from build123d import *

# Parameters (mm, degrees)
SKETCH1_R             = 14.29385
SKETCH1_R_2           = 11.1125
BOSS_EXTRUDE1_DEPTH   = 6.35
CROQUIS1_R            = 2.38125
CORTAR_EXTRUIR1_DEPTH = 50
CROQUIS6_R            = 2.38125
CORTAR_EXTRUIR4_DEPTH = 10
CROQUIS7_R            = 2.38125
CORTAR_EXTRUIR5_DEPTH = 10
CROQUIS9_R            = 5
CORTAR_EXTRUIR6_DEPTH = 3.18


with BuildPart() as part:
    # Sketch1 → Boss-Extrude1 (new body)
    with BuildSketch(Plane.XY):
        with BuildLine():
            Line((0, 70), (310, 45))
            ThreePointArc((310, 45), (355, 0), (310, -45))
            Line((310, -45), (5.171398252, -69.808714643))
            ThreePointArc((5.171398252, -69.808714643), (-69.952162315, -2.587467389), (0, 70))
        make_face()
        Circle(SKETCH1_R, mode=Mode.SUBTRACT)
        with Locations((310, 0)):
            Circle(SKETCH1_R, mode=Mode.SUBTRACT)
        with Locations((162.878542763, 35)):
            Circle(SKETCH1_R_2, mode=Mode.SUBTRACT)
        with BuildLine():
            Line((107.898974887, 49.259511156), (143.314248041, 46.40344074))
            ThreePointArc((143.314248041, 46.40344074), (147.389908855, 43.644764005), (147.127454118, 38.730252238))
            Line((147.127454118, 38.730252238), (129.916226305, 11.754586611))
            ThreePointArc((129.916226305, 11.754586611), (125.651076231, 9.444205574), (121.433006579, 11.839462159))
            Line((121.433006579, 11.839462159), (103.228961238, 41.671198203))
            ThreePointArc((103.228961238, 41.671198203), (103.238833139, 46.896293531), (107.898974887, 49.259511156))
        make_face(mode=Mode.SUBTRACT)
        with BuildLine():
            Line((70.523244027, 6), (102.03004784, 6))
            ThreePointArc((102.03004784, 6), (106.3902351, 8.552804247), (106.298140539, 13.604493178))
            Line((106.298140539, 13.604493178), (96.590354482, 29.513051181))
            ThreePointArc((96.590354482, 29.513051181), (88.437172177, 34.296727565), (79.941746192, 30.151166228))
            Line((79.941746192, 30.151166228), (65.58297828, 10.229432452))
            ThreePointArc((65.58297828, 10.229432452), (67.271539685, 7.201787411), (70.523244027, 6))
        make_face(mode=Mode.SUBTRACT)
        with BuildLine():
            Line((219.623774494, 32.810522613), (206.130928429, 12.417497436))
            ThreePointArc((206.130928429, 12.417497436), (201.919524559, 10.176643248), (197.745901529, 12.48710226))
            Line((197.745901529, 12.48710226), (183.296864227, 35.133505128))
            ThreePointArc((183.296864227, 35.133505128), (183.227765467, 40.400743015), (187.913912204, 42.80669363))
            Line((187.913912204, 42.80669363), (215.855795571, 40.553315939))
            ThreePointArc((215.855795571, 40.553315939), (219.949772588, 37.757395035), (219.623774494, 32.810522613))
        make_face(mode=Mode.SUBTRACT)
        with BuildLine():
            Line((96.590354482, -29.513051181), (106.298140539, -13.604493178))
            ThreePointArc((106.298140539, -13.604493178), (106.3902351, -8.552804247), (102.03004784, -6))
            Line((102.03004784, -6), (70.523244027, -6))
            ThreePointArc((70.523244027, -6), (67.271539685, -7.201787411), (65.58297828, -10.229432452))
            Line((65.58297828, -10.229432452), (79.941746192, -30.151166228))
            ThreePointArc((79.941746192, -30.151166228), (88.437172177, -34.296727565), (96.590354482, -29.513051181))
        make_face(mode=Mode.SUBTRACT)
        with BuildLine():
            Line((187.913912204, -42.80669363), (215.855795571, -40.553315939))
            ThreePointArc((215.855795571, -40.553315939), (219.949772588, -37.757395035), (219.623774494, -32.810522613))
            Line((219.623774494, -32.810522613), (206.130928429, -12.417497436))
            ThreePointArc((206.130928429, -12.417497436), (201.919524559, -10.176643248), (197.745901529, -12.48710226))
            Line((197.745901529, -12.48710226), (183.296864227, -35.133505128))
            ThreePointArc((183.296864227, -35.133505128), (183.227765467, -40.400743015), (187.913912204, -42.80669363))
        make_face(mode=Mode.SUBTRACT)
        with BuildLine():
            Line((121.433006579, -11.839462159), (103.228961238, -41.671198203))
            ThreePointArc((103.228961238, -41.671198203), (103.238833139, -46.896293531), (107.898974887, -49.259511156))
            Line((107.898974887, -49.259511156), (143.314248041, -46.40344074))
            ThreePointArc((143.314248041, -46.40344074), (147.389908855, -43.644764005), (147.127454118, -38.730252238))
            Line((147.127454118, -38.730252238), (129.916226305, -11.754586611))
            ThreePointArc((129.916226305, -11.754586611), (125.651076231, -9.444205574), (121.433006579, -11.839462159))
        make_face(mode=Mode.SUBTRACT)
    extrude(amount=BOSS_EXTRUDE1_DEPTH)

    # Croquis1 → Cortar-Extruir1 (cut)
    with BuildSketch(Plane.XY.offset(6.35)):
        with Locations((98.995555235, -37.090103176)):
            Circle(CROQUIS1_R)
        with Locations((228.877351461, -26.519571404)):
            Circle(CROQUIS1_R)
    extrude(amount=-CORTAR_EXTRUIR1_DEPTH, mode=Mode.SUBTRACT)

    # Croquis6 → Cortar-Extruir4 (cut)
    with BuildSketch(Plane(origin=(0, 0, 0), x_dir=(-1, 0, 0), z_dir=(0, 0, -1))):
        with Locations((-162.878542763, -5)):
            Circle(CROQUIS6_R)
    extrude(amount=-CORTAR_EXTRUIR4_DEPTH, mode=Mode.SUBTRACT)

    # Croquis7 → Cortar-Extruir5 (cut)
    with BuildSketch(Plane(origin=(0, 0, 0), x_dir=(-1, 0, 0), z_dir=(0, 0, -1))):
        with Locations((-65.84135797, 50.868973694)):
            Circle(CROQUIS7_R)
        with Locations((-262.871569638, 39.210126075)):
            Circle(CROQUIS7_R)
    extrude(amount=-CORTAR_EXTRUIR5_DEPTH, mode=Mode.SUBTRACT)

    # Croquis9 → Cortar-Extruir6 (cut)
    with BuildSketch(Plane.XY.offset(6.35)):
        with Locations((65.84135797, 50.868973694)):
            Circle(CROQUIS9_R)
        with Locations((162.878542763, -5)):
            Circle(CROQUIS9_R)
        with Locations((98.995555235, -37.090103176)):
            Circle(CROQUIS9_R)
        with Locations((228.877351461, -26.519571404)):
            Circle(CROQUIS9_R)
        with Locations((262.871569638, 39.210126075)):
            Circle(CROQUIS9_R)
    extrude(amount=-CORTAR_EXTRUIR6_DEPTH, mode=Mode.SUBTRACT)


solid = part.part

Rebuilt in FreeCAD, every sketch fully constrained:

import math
import FreeCAD as App
import Part
import Sketcher
from FreeCAD import Vector
Q = App.Units.Quantity

doc = App.newDocument("Part")
body = doc.addObject("PartDesign::Body", "Body")

sketch1 = body.newObject("Sketcher::SketchObject", "Sketch")
sketch1.AttachmentSupport = (doc.getObject("XY_Plane"), [""])
sketch1.MapMode = "FlatFace"
sketch1.addGeometry([
    Part.LineSegment(Vector(310, 45, 0), Vector(0, 70, 0)),
    Part.ArcOfCircle(Part.Circle(Vector(0, 0, 0), Vector(0, 0, 1), 70), math.radians(90), math.radians(274.236707)),
    Part.LineSegment(Vector(5.171398, -69.808715, 0), Vector(310, -45, 0)),
    Part.ArcOfCircle(Part.Circle(Vector(310, 0, 0), Vector(0, 0, 1), 45), math.radians(-90), math.radians(90)),
    Part.ArcOfCircle(Part.Circle(Vector(187.511991, -37.822874, 0), Vector(0, 0, 1), 5), math.radians(147.460988), math.radians(274.610649)),
    Part.LineSegment(Vector(183.296864, -35.133505, 0), Vector(197.745902, -12.487102, 0)),
    Part.ArcOfCircle(Part.Circle(Vector(201.961029, -15.176471, 0), Vector(0, 0, 1), 5), math.radians(33.490225), math.radians(147.460988)),
    Part.LineSegment(Vector(206.130928, -12.417497, 0), Vector(219.623774, -32.810523, 0)),
    Part.ArcOfCircle(Part.Circle(Vector(215.453875, -35.569496, 0), Vector(0, 0, 1), 5), math.radians(-85.389351), math.radians(33.490225)),
    Part.LineSegment(Vector(215.855796, -40.553316, 0), Vector(187.913912, -42.806694, 0)),
    Part.Circle(Vector(310, 0, 0), Vector(0, 0, 1), 14.29385),
    Part.ArcOfCircle(Part.Circle(Vector(125.701099, -14.443955, 0), Vector(0, 0, 1), 5), math.radians(32.539012), math.radians(148.60745)),
    Part.LineSegment(Vector(129.916226, -11.754587, 0), Vector(147.127454, -38.730252, 0)),
    Part.ArcOfCircle(Part.Circle(Vector(142.912327, -41.419621, 0), Vector(0, 0, 1), 5), math.radians(-85.389351), math.radians(32.539012)),
    Part.LineSegment(Vector(143.314248, -46.403441, 0), Vector(107.898975, -49.259511, 0)),
    Part.ArcOfCircle(Part.Circle(Vector(107.497054, -44.275691, 0), Vector(0, 0, 1), 5), math.radians(148.60745), math.radians(274.610649)),
    Part.LineSegment(Vector(103.228961, -41.671198, 0), Vector(121.433007, -11.839462, 0)),
    Part.ArcOfCircle(Part.Circle(Vector(88.054169, -24.304065, 0), Vector(0, 0, 1), 10), math.radians(-144.217485), math.radians(-31.39255)),
    Part.LineSegment(Vector(79.941746, -30.151166, 0), Vector(65.582978, -10.229432, 0)),
    Part.ArcOfCircle(Part.Circle(Vector(70.523244, -11, 0), Vector(0, 0, 1), 5), math.radians(90), math.radians(171.134614)),
    Part.LineSegment(Vector(70.523244, -6, 0), Vector(102.030048, -6, 0)),
    Part.ArcOfCircle(Part.Circle(Vector(102.030048, -11, 0), Vector(0, 0, 1), 5), math.radians(-31.39255), math.radians(90)),
    Part.LineSegment(Vector(106.298141, -13.604493, 0), Vector(96.590354, -29.513051, 0)),
    Part.Circle(Vector(0, 0, 0), Vector(0, 0, 1), 14.29385),
    Part.LineSegment(Vector(219.623774, 32.810523, 0), Vector(206.130928, 12.417497, 0)),
    Part.ArcOfCircle(Part.Circle(Vector(201.961029, 15.176471, 0), Vector(0, 0, 1), 5), math.radians(-147.460988), math.radians(-33.490225)),
    Part.LineSegment(Vector(197.745902, 12.487102, 0), Vector(183.296864, 35.133505, 0)),
    Part.ArcOfCircle(Part.Circle(Vector(187.511991, 37.822874, 0), Vector(0, 0, 1), 5), math.radians(85.389351), math.radians(212.539012)),
    Part.LineSegment(Vector(187.913912, 42.806694, 0), Vector(215.855796, 40.553316, 0)),
    Part.ArcOfCircle(Part.Circle(Vector(215.453875, 35.569496, 0), Vector(0, 0, 1), 5), math.radians(-33.490225), math.radians(85.389351)),
    Part.Circle(Vector(162.878543, 35, 0), Vector(0, 0, 1), 11.1125),
    Part.ArcOfCircle(Part.Circle(Vector(70.523244, 11, 0), Vector(0, 0, 1), 5), math.radians(-171.134614), math.radians(-90)),
    Part.LineSegment(Vector(65.582978, 10.229432, 0), Vector(79.941746, 30.151166, 0)),
    Part.ArcOfCircle(Part.Circle(Vector(88.054169, 24.304065, 0), Vector(0, 0, 1), 10), math.radians(31.39255), math.radians(144.217485)),
    Part.LineSegment(Vector(96.590354, 29.513051, 0), Vector(106.298141, 13.604493, 0)),
    Part.ArcOfCircle(Part.Circle(Vector(102.030048, 11, 0), Vector(0, 0, 1), 5), math.radians(-90), math.radians(31.39255)),
    Part.LineSegment(Vector(102.030048, 6, 0), Vector(70.523244, 6, 0)),
    Part.LineSegment(Vector(107.898975, 49.259511, 0), Vector(143.314248, 46.403441, 0)),
    Part.ArcOfCircle(Part.Circle(Vector(142.912327, 41.419621, 0), Vector(0, 0, 1), 5), math.radians(-32.539012), math.radians(85.389351)),
    Part.LineSegment(Vector(147.127454, 38.730252, 0), Vector(129.916226, 11.754587, 0)),
    Part.ArcOfCircle(Part.Circle(Vector(125.701099, 14.443955, 0), Vector(0, 0, 1), 5), math.radians(-148.60745), math.radians(-32.539012)),
    Part.LineSegment(Vector(121.433007, 11.839462, 0), Vector(103.228961, 41.671198, 0)),
    Part.ArcOfCircle(Part.Circle(Vector(107.497054, 44.275691, 0), Vector(0, 0, 1), 5), math.radians(85.389351), math.radians(211.39255)),
], False)
sketch1.addConstraint([
    Sketcher.Constraint("Coincident", 0, 2, 1, 1),
    Sketcher.Constraint("Coincident", 1, 2, 2, 1),
    Sketcher.Constraint("Coincident", 2, 2, 3, 1),
    Sketcher.Constraint("Coincident", 3, 2, 0, 1),
    Sketcher.Constraint("Tangent", 4, 1, 5, 1),
    Sketcher.Constraint("Tangent", 5, 2, 6, 2),
    Sketcher.Constraint("Tangent", 6, 1, 7, 1),
    Sketcher.Constraint("Tangent", 7, 2, 8, 2),
    Sketcher.Constraint("Tangent", 8, 1, 9, 1),
    Sketcher.Constraint("Tangent", 9, 2, 4, 2),
    Sketcher.Constraint("Tangent", 11, 1, 12, 1),
    Sketcher.Constraint("Tangent", 12, 2, 13, 2),
    Sketcher.Constraint("Tangent", 13, 1, 14, 1),
    Sketcher.Constraint("Tangent", 14, 2, 15, 2),
    Sketcher.Constraint("Tangent", 15, 1, 16, 1),
    Sketcher.Constraint("Tangent", 16, 2, 11, 2),
    Sketcher.Constraint("Tangent", 17, 1, 18, 1),
    Sketcher.Constraint("Coincident", 18, 2, 19, 2),
    Sketcher.Constraint("Tangent", 19, 1, 20, 1),
    Sketcher.Constraint("Tangent", 20, 2, 21, 2),
    Sketcher.Constraint("Tangent", 21, 1, 22, 1),
    Sketcher.Constraint("Tangent", 22, 2, 17, 2),
    Sketcher.Constraint("Tangent", 24, 2, 25, 2),
    Sketcher.Constraint("Tangent", 25, 1, 26, 1),
    Sketcher.Constraint("Tangent", 26, 2, 27, 2),
    Sketcher.Constraint("Tangent", 27, 1, 28, 1),
    Sketcher.Constraint("Tangent", 28, 2, 29, 2),
    Sketcher.Constraint("Tangent", 29, 1, 24, 1),
    Sketcher.Constraint("Coincident", 31, 1, 32, 1),
    Sketcher.Constraint("Tangent", 32, 2, 33, 2),
    Sketcher.Constraint("Tangent", 33, 1, 34, 1),
    Sketcher.Constraint("Tangent", 34, 2, 35, 2),
    Sketcher.Constraint("Tangent", 35, 1, 36, 1),
    Sketcher.Constraint("Tangent", 36, 2, 31, 2),
    Sketcher.Constraint("Tangent", 37, 2, 38, 2),
    Sketcher.Constraint("Tangent", 38, 1, 39, 1),
    Sketcher.Constraint("Tangent", 39, 2, 40, 2),
    Sketcher.Constraint("Tangent", 40, 1, 41, 1),
    Sketcher.Constraint("Tangent", 41, 2, 42, 2),
    Sketcher.Constraint("Tangent", 42, 1, 37, 1),
    Sketcher.Constraint("Horizontal", 20),
    Sketcher.Constraint("Horizontal", 36),
    Sketcher.Constraint("Coincident", 1, 3, -1, 1),
    Sketcher.Constraint("Coincident", 23, 3, -1, 1),
    Sketcher.Constraint("Coincident", 10, 3, 3, 3),
    Sketcher.Constraint("Equal", 4, 6),
    Sketcher.Constraint("Equal", 6, 8),
    Sketcher.Constraint("Equal", 8, 11),
    Sketcher.Constraint("Equal", 11, 13),
    Sketcher.Constraint("Equal", 13, 15),
    Sketcher.Constraint("Equal", 15, 19),
    Sketcher.Constraint("Equal", 19, 21),
    Sketcher.Constraint("Equal", 10, 23),
    Sketcher.Constraint("Equal", 21, 25),
    Sketcher.Constraint("Equal", 25, 27),
    Sketcher.Constraint("Equal", 27, 29),
    Sketcher.Constraint("Equal", 29, 31),
    Sketcher.Constraint("Equal", 17, 33),
    Sketcher.Constraint("Equal", 31, 35),
    Sketcher.Constraint("Equal", 35, 38),
    Sketcher.Constraint("Equal", 38, 40),
    Sketcher.Constraint("Equal", 40, 42),
    Sketcher.Constraint("Symmetric", 6, 3, 25, 3, -1),
    Sketcher.Constraint("Symmetric", 4, 3, 27, 3, -1),
    Sketcher.Constraint("Symmetric", 8, 3, 29, 3, -1),
    Sketcher.Constraint("Symmetric", 19, 3, 31, 3, -1),
    Sketcher.Constraint("Symmetric", 17, 3, 33, 3, -1),
    Sketcher.Constraint("Symmetric", 13, 3, 38, 3, -1),
    Sketcher.Constraint("Symmetric", 11, 3, 40, 3, -1),
    Sketcher.Constraint("Symmetric", 15, 3, 42, 3, -1),
    Sketcher.Constraint("Symmetric", 2, 2, 3, 2, -1),
    Sketcher.Constraint("PointOnObject", 0, 2, -2),
    Sketcher.Constraint("Parallel", 9, 14),
    Sketcher.Constraint("Parallel", 16, 22),
    Sketcher.Constraint("Parallel", 12, 26),
    Sketcher.Constraint("Parallel", 0, 28),
    Sketcher.Constraint("Parallel", 34, 41),
    Sketcher.Constraint("Vertical", 10, 3, 2, 2),
    Sketcher.Constraint("Vertical", 18, 2, 31, 1),
    Sketcher.Constraint("Radius", 1, Q("70 mm")),
    Sketcher.Constraint("Radius", 3, Q("45 mm")),
    Sketcher.Constraint("Radius", 4, Q("5 mm")),
    Sketcher.Constraint("Radius", 17, Q("10 mm")),
    Sketcher.Constraint("Diameter", 30, Q("22.225 mm")),
    Sketcher.Constraint("DistanceX", -1, 1, 3, 3, Q("310 mm")),
    Sketcher.Constraint("DistanceY", 19, 3, -1, 1, Q("11 mm")),
    Sketcher.Constraint("DistanceY", -1, 1, 30, 3, Q("35 mm")),
    Sketcher.Constraint("Diameter", 10, Q("28.5877 mm")),
    Sketcher.Constraint("Distance", 9, Q("28.032598 mm")),
    Sketcher.Constraint("DistanceX", -1, 1, 11, 3, Q("125.701099 mm")),
    Sketcher.Constraint("DistanceX", -1, 1, 1, 2, Q("5.171398 mm")),
    Sketcher.Constraint("DistanceX", -1, 1, 5, 2, Q("197.745902 mm")),
    Sketcher.Constraint("DistanceY", 15, 1, -1, 1, Q("41.671198 mm")),
    Sketcher.Constraint("Distance", 5, Q("26.863251 mm")),
    Sketcher.Constraint("Distance", 12, Q("31.998639 mm")),
    Sketcher.Constraint("Distance", 14, Q("35.530251 mm")),
    Sketcher.Constraint("Distance", 18, Q("24.55707 mm")),
    Sketcher.Constraint("DistanceX", 20, 1, 20, 2, Q("31.506804 mm")),
    Sketcher.Constraint("DistanceX", -1, 1, 4, 3, Q("187.511991 mm")),
    Sketcher.Constraint("DistanceY", 6, 3, -1, 1, Q("15.176471 mm")),
    Sketcher.Constraint("DistanceX", -1, 1, 17, 3, Q("88.054169 mm")),
    Sketcher.Constraint("DistanceX", -1, 1, 18, 2, Q("65.582978 mm")),
    Sketcher.Constraint("DistanceX", -1, 1, 30, 3, Q("162.878543 mm")),
])
pad1 = body.newObject("PartDesign::Pad", "Pad")
pad1.Profile = sketch1
pad1.Length = 6.35

sketch2 = body.newObject("Sketcher::SketchObject", "Sketch001")
sketch2.AttachmentSupport = (doc.getObject("XY_Plane"), [""])
sketch2.MapMode = "FlatFace"
sketch2.AttachmentOffset = App.Placement(Vector(0, 0, 6.35), App.Rotation())
sketch2.addGeometry([
    Part.Circle(Vector(98.995555, -37.090103, 0), Vector(0, 0, 1), 2.38125),
    Part.Circle(Vector(228.877351, -26.519571, 0), Vector(0, 0, 1), 2.38125),
], False)
sketch2.addConstraint([
    Sketcher.Constraint("Equal", 0, 1),
    Sketcher.Constraint("Diameter", 0, Q("4.7625 mm")),
    Sketcher.Constraint("DistanceX", -1, 1, 1, 3, Q("228.877351 mm")),
    Sketcher.Constraint("DistanceY", 1, 3, -1, 1, Q("26.519571 mm")),
    Sketcher.Constraint("DistanceY", 0, 3, 1, 3, Q("10.570532 mm")),
    Sketcher.Constraint("DistanceX", -1, 1, 0, 3, Q("98.995555 mm")),
])
pocket1 = body.newObject("PartDesign::Pocket", "Pocket")
pocket1.Profile = sketch2
pocket1.Length = 50

sketch3 = body.newObject("Sketcher::SketchObject", "Sketch002")
sketch3.AttachmentSupport = (doc.getObject("XY_Plane"), [""])
sketch3.MapMode = "FlatFace"
sketch3.addGeometry(Part.Circle(Vector(162.878543, -5, 0), Vector(0, 0, 1), 2.38125), False)
sketch3.addConstraint([
    Sketcher.Constraint("DistanceY", 0, 3, -1, 1, Q("5 mm")),
    Sketcher.Constraint("Diameter", 0, Q("4.7625 mm")),
    Sketcher.Constraint("DistanceX", -1, 1, 0, 3, Q("162.878543 mm")),
])
pocket2 = body.newObject("PartDesign::Pocket", "Pocket001")
pocket2.Profile = sketch3
pocket2.Length = 10
pocket2.Reversed = True

sketch4 = body.newObject("Sketcher::SketchObject", "Sketch003")
sketch4.AttachmentSupport = (doc.getObject("XY_Plane"), [""])
sketch4.MapMode = "FlatFace"
sketch4.addGeometry([
    Part.Circle(Vector(65.841358, 50.868974, 0), Vector(0, 0, 1), 2.38125),
    Part.Circle(Vector(262.87157, 39.210126, 0), Vector(0, 0, 1), 2.38125),
], False)
sketch4.addConstraint([
    Sketcher.Constraint("Equal", 0, 1),
    Sketcher.Constraint("Diameter", 0, Q("4.7625 mm")),
    Sketcher.Constraint("DistanceX", -1, 1, 1, 3, Q("262.87157 mm")),
    Sketcher.Constraint("DistanceX", 0, 3, 1, 3, Q("197.030212 mm")),
    Sketcher.Constraint("DistanceY", -1, 1, 0, 3, Q("50.868974 mm")),
    Sketcher.Constraint("DistanceY", -1, 1, 1, 3, Q("39.210126 mm")),
])
pocket3 = body.newObject("PartDesign::Pocket", "Pocket002")
pocket3.Profile = sketch4
pocket3.Length = 10
pocket3.Reversed = True

sketch5 = body.newObject("Sketcher::SketchObject", "Sketch004")
sketch5.AttachmentSupport = (doc.getObject("XY_Plane"), [""])
sketch5.MapMode = "FlatFace"
sketch5.AttachmentOffset = App.Placement(Vector(0, 0, 6.35), App.Rotation())
sketch5.addGeometry([
    Part.Circle(Vector(65.841358, 50.868974, 0), Vector(0, 0, 1), 5),
    Part.Circle(Vector(162.878543, -5, 0), Vector(0, 0, 1), 5),
    Part.Circle(Vector(98.995555, -37.090103, 0), Vector(0, 0, 1), 5),
    Part.Circle(Vector(228.877351, -26.519571, 0), Vector(0, 0, 1), 5),
    Part.Circle(Vector(262.87157, 39.210126, 0), Vector(0, 0, 1), 5),
], False)
sketch5.addConstraint([
    Sketcher.Constraint("Equal", 0, 1),
    Sketcher.Constraint("Equal", 1, 2),
    Sketcher.Constraint("Equal", 2, 3),
    Sketcher.Constraint("Equal", 3, 4),
    Sketcher.Constraint("Diameter", 0, Q("10 mm")),
    Sketcher.Constraint("DistanceY", 1, 3, -1, 1, Q("5 mm")),
    Sketcher.Constraint("DistanceX", -1, 1, 3, 3, Q("228.877351 mm")),
    Sketcher.Constraint("DistanceY", 3, 3, -1, 1, Q("26.519571 mm")),
    Sketcher.Constraint("DistanceX", -1, 1, 4, 3, Q("262.87157 mm")),
    Sketcher.Constraint("DistanceX", 1, 3, 3, 3, Q("65.998809 mm")),
    Sketcher.Constraint("DistanceY", 2, 3, 3, 3, Q("10.570532 mm")),
    Sketcher.Constraint("DistanceY", 2, 3, 4, 3, Q("76.300229 mm")),
    Sketcher.Constraint("DistanceX", 0, 3, 4, 3, Q("197.030212 mm")),
    Sketcher.Constraint("DistanceY", -1, 1, 0, 3, Q("50.868974 mm")),
    Sketcher.Constraint("DistanceX", -1, 1, 2, 3, Q("98.995555 mm")),
])
pocket4 = body.newObject("PartDesign::Pocket", "Pocket003")
pocket4.Profile = sketch5
pocket4.Length = 3.18

doc.recompute()
